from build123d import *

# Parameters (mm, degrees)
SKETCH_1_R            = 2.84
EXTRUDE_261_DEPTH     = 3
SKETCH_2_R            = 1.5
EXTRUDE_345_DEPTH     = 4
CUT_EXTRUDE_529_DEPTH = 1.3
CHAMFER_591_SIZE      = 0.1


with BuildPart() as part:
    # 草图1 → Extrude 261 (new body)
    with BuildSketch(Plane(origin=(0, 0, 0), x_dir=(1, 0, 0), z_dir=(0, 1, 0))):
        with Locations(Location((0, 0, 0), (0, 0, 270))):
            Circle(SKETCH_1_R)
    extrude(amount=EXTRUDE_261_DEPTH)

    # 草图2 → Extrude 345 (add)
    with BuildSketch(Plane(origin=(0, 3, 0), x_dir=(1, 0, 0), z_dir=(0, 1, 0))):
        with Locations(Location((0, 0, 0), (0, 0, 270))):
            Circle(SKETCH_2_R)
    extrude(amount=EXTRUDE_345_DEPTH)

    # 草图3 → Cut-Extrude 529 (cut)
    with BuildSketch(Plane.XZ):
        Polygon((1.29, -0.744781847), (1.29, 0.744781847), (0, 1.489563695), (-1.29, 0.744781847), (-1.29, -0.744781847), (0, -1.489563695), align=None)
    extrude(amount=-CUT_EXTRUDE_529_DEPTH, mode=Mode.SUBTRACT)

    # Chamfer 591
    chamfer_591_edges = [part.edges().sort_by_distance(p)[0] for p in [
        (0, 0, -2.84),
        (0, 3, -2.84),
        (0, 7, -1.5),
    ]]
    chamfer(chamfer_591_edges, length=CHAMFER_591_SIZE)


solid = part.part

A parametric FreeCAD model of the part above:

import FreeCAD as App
import Part
import Sketcher
Q = App.Units.Quantity


def edges_at(feature, points):
    """Names of the edges that pass closest to the given points."""
    edges = feature.Shape.Edges
    near = lambda p: min(range(len(edges)), key=lambda i: edges[i].distToShape(Part.Vertex(*p))[0])
    return sorted({f"Edge{near(p) + 1}" for p in points})

doc = App.newDocument("Part")
body = doc.addObject("PartDesign::Body", "Body")

sketch1 = body.newObject("Sketcher::SketchObject", "Sketch")
sketch1.AttachmentSupport = (doc.getObject("XZ_Plane"), [""])
sketch1.MapMode = "FlatFace"
sketch1.addGeometry(Part.Circle(App.Vector(0, 0, 0), App.Vector(0, 0, 1), 2.8), False)
sketch1.addConstraint(Sketcher.Constraint("Coincident", 0, 3, -1, 1))
sketch1.addConstraint(Sketcher.Constraint("Diameter", 0, Q("5.68 mm")))
pad1 = body.newObject("PartDesign::Pad", "Pad")
pad1.Profile = sketch1
pad1.Length = 3
pad1.Reversed = True

sketch2 = body.newObject("Sketcher::SketchObject", "Sketch001")
sketch2.AttachmentSupport = (doc.getObject("XZ_Plane"), [""])
sketch2.MapMode = "FlatFace"
sketch2.AttachmentOffset = App.Placement(App.Vector(0, 0, -3), App.Rotation())
sketch2.addGeometry(Part.Circle(App.Vector(0, 0, 0), App.Vector(0, 0, 1), 1.5), False)
sketch2.addConstraint(Sketcher.Constraint("Coincident", 0, 3, -1, 1))
sketch2.addConstraint(Sketcher.Constraint("Diameter", 0, Q("3 mm")))
pad2 = body.newObject("PartDesign::Pad", "Pad001")
pad2.Profile = sketch2
pad2.Length = 4
pad2.Reversed = True

sketch3 = body.newObject("Sketcher::SketchObject", "Sketch002")
sketch3.AttachmentSupport = (doc.getObject("XZ_Plane"), [""])
sketch3.MapMode = "FlatFace"
sketch3.addGeometry(Part.LineSegment(App.Vector(1.3, -0.7, 0), App.Vector(1.3, 0.7, 0)), False)
sketch3.addGeometry(Part.LineSegment(App.Vector(1.3, 0.7, 0), App.Vector(0, 1.5, 0)), False)
sketch3.addGeometry(Part.LineSegment(App.Vector(0, 1.5, 0), App.Vector(-1.3, 0.7, 0)), False)
sketch3.addGeometry(Part.LineSegment(App.Vector(-1.3, 0.7, 0), App.Vector(-1.3, -0.7, 0)), False)
sketch3.addGeometry(Part.LineSegment(App.Vector(-1.3, -0.7, 0), App.Vector(0, -1.5, 0)), False)
sketch3.addGeometry(Part.LineSegment(App.Vector(0, -1.5, 0), App.Vector(1.3, -0.7, 0)), False)
sketch3.addConstraint(Sketcher.Constraint("Coincident", 0, 2, 1, 1))
sketch3.addConstraint(Sketcher.Constraint("Coincident", 1, 2, 2, 1))
sketch3.addConstraint(Sketcher.Constraint("Coincident", 2, 2, 3, 1))
sketch3.addConstraint(Sketcher.Constraint("Coincident", 3, 2, 4, 1))
sketch3.addConstraint(Sketcher.Constraint("Coincident", 4, 2, 5, 1))
sketch3.addConstraint(Sketcher.Constraint("Coincident", 5, 2, 0, 1))
sketch3.addConstraint(Sketcher.Constraint("Vertical", 0))
sketch3.addConstraint(Sketcher.Constraint("Vertical", 3))
sketch3.addConstraint(Sketcher.Constraint("Symmetric", 0, 2, 3, 2, -1, 1))
sketch3.addConstraint(Sketcher.Constraint("Symmetric", 1, 2, 4, 2, -1, 1))
sketch3.addConstraint(Sketcher.Constraint("PointOnObject", 1, 2, -2))
sketch3.addConstraint(Sketcher.Constraint("Parallel", 2, 5))
sketch3.addConstraint(Sketcher.Constraint("Horizontal", 0, 2, 2, 2))
sketch3.addConstraint(Sketcher.Constraint("Angle", 1, Q("150 deg")))
sketch3.addConstraint(Sketcher.Constraint("DistanceX", -1, 1, 0, 2, Q("1.29 mm")))
sketch3.addConstraint(Sketcher.Constraint("DistanceY", 0, 1, 0, 2, Q("1.489564 mm")))
pocket1 = body.newObject("PartDesign::Pocket", "Pocket")
pocket1.Profile = sketch3
pocket1.Length = 1.3
doc.recompute()

chamfer = body.newObject("PartDesign::Chamfer", "Chamfer")
chamfer.Base = (pocket1, edges_at(pocket1, [(0, 0, -2.84), (0, 3, -2.84), (0, 7, -1.5)]))
chamfer.Size = 0.1

doc.recompute()
